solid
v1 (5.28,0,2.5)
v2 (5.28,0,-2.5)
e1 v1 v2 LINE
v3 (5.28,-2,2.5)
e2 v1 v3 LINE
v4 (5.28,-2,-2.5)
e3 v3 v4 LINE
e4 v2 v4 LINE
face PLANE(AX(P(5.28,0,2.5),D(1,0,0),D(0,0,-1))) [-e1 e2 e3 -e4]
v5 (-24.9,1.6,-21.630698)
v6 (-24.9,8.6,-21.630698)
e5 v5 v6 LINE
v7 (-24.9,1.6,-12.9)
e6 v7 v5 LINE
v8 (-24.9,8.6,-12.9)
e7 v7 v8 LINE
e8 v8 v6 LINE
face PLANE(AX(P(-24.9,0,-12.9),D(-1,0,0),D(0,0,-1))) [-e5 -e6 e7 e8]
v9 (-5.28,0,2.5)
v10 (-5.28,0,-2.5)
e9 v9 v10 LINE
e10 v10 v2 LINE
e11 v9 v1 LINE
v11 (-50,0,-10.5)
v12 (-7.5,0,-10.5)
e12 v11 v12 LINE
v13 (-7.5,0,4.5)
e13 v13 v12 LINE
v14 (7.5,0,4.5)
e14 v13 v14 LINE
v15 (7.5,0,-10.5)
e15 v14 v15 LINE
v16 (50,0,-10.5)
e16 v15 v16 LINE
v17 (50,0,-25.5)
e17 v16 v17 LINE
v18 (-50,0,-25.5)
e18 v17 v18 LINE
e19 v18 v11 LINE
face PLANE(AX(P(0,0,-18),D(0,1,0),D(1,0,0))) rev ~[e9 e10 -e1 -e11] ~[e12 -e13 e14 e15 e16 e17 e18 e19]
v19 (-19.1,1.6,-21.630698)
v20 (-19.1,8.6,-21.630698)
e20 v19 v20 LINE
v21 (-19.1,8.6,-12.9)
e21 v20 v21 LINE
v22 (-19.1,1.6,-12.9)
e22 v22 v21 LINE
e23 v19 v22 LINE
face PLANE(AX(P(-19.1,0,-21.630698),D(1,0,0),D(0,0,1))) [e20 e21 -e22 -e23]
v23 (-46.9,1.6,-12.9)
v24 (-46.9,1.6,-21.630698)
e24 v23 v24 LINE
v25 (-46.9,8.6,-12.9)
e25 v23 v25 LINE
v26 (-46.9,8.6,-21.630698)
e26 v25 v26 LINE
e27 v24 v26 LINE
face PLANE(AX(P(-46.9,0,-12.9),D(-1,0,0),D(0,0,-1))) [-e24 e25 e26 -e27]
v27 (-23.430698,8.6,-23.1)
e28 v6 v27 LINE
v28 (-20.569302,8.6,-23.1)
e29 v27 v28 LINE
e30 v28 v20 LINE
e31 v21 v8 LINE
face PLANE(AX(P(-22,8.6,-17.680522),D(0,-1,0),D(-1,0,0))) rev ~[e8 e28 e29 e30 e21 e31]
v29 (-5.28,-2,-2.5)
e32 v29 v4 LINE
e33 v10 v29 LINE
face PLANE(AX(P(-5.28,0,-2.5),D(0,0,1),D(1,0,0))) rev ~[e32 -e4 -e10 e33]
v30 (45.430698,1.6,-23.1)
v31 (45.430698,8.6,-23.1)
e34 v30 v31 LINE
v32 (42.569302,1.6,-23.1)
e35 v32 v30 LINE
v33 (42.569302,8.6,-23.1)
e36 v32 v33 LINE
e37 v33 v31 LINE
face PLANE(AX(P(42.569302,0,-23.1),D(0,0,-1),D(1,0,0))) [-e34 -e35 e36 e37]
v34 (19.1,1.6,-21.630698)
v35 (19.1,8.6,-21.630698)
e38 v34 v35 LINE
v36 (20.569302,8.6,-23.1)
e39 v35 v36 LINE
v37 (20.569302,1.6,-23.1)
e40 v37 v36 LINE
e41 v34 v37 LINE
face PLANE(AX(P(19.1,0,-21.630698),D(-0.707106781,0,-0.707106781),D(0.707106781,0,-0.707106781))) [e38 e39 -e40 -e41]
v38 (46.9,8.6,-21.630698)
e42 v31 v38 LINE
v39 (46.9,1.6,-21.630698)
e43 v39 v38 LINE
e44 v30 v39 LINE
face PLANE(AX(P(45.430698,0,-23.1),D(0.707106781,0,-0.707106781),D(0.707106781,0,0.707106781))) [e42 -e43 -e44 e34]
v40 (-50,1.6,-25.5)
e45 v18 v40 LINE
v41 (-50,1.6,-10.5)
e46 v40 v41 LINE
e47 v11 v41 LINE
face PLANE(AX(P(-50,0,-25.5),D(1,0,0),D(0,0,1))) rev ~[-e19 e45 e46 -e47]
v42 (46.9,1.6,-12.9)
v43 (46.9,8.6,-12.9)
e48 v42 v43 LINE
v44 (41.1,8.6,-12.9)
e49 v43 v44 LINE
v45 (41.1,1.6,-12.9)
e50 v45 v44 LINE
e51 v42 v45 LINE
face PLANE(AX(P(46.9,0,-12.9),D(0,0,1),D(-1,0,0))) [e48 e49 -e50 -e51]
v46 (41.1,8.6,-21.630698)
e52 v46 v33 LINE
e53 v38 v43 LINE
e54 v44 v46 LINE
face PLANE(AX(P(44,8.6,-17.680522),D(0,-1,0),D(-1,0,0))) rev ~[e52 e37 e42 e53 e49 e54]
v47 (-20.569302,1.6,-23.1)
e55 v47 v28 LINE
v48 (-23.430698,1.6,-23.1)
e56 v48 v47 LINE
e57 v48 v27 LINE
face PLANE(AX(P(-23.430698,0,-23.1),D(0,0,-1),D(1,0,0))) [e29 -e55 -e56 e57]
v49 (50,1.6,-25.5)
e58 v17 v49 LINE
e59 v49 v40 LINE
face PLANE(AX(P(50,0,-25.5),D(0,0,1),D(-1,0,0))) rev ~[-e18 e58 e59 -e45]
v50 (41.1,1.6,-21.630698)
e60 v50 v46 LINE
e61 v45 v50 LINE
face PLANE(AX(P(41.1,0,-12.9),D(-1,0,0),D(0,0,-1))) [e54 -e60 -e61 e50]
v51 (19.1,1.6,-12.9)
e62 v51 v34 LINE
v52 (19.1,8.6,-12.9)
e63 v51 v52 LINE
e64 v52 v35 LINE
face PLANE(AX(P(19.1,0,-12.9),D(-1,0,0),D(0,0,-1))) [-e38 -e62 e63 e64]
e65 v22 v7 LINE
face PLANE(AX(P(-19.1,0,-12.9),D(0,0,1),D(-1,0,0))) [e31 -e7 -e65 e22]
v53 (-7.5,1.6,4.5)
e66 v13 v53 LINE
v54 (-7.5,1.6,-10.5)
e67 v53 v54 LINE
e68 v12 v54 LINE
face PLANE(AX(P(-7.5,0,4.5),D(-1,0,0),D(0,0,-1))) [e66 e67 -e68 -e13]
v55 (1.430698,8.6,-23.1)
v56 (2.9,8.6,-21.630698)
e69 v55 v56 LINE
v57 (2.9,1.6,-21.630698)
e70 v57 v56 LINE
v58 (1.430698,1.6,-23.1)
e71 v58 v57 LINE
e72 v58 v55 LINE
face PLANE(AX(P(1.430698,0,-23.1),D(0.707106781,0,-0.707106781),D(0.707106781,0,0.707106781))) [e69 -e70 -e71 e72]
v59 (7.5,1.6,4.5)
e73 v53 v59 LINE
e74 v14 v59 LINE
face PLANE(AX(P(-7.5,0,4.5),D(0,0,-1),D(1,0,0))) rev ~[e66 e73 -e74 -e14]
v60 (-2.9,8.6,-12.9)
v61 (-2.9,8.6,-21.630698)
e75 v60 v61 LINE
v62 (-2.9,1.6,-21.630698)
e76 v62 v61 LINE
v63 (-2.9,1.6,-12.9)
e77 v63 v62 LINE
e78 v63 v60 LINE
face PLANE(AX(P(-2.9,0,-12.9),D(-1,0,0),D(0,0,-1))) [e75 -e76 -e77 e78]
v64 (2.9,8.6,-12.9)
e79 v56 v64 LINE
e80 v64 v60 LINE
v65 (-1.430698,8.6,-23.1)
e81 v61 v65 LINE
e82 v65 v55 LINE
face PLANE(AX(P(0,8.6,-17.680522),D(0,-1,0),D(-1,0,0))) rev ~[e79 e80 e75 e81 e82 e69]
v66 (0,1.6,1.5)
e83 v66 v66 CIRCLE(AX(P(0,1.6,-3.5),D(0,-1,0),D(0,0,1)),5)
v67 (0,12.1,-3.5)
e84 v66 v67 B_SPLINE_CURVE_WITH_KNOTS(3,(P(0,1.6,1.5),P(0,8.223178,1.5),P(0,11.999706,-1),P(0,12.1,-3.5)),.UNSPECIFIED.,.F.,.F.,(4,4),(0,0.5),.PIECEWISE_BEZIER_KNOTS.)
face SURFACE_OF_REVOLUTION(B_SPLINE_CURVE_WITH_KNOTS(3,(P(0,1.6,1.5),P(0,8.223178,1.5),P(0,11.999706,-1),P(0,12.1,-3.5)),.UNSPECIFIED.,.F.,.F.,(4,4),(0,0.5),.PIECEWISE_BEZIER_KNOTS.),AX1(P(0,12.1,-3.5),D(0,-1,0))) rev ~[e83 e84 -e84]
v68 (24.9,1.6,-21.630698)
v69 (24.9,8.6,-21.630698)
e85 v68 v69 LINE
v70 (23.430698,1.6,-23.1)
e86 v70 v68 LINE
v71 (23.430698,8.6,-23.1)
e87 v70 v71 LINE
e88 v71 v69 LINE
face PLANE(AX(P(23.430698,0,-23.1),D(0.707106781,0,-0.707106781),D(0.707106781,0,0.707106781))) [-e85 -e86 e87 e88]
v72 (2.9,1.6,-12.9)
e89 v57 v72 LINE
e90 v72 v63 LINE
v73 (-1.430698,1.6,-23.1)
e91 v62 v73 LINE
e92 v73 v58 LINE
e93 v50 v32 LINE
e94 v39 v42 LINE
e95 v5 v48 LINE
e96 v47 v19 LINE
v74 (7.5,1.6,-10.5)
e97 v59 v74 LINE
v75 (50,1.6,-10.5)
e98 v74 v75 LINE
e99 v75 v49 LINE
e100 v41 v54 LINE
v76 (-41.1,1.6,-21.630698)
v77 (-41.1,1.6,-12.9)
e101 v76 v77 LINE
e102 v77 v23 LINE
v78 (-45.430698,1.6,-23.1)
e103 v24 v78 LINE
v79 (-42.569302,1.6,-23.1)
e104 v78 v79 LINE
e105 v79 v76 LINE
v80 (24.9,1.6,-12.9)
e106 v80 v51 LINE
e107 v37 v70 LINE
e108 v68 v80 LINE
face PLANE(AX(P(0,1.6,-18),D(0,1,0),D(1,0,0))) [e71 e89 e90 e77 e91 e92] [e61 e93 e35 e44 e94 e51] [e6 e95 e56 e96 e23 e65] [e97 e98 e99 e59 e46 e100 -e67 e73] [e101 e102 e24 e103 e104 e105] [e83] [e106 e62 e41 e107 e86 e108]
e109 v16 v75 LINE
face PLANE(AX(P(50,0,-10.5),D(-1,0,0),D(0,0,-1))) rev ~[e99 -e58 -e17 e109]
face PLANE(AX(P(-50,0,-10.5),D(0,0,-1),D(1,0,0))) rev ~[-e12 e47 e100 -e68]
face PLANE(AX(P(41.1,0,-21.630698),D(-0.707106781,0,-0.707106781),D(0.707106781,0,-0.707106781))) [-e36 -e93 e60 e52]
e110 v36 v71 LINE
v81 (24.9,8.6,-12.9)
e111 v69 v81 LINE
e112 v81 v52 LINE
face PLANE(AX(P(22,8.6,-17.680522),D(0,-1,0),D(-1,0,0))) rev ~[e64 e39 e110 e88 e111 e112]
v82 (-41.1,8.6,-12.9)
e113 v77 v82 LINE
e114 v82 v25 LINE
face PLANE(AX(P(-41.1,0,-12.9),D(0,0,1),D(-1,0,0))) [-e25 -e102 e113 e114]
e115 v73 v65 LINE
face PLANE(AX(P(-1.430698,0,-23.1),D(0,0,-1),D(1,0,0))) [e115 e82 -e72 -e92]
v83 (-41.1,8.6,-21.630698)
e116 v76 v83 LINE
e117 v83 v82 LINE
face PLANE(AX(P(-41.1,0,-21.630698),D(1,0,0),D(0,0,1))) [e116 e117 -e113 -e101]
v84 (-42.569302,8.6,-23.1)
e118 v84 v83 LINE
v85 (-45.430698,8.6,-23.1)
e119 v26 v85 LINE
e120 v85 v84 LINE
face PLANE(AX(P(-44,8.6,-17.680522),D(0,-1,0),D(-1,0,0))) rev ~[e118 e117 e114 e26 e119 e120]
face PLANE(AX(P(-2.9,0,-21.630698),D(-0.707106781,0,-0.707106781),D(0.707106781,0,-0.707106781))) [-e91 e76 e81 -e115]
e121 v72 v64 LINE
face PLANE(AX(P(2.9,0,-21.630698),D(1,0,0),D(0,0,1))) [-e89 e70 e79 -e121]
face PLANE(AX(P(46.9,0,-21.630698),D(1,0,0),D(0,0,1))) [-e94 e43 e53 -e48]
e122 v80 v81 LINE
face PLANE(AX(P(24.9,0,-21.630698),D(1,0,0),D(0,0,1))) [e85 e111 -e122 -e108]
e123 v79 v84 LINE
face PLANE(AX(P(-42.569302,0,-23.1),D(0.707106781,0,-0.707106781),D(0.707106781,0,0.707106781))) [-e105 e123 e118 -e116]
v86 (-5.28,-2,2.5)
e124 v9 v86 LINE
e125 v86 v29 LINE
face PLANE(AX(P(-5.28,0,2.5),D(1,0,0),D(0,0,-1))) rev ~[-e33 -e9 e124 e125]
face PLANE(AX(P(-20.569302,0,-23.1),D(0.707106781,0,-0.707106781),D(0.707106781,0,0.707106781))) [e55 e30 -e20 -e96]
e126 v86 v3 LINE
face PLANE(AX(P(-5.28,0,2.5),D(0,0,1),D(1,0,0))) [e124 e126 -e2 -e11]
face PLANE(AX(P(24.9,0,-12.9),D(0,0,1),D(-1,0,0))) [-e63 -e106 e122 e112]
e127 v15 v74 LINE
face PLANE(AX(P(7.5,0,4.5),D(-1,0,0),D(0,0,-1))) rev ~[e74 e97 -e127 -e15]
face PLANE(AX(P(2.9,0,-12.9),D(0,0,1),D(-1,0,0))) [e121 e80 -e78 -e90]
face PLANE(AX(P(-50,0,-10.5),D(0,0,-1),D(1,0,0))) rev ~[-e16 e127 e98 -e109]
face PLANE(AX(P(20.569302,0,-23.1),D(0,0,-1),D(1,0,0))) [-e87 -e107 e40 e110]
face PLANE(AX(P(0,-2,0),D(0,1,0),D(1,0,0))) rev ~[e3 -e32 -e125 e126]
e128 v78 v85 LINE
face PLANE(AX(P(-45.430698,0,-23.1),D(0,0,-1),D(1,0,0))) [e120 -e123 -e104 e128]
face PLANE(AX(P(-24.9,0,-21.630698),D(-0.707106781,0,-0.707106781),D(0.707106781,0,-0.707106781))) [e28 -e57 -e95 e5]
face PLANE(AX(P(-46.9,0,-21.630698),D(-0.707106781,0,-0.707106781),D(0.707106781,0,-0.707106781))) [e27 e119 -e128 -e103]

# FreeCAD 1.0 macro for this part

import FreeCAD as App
import Part
import Sketcher

V = App.Vector
Q = App.Units.Quantity


def add_polygon(sketch, points):
    """Adds a closed chain of lines whose ends are joined by coincident constraints."""
    first, n = sketch.GeometryCount, len(points)
    for a, b in zip(points, points[1:] + points[:1]):
        sketch.addGeometry(Part.LineSegment(App.Vector(*a, 0), App.Vector(*b, 0)), False)
    for i in range(n):
        sketch.addConstraint(Sketcher.Constraint("Coincident", first + i, 2, first + (i + 1) % n, 1))

doc = App.newDocument("Part")
body = doc.addObject("PartDesign::Body", "Body")

# Sketch on XZ plane
sketch1 = body.newObject("Sketcher::SketchObject", "Sketch")
sketch1.AttachmentSupport = (doc.getObject("XZ_Plane"), [""])
sketch1.MapMode = "FlatFace"
add_polygon(sketch1, [(-7.5, -10.5), (-7.5, 4.5), (7.5, 4.5), (7.5, -10.5), (50, -10.5), (50, -25.5), (-50, -25.5), (-50, -10.5)])  # lines 0-7
add_polygon(sketch1, [(45.430698, -23.1), (46.9, -21.630698), (46.9, -12.9), (41.1, -12.9), (41.1, -21.630698), (42.569302, -23.1)])  # lines 8-13
add_polygon(sketch1, [(-45.430698, -23.1), (-42.569302, -23.1), (-41.1, -21.630698), (-41.1, -12.9), (-46.9, -12.9), (-46.9, -21.630698)])  # lines 14-19
add_polygon(sketch1, [(-23.430698, -23.1), (-20.569302, -23.1), (-19.1, -21.630698), (-19.1, -12.9), (-24.9, -12.9), (-24.9, -21.630698)])  # lines 20-25
add_polygon(sketch1, [(2.9, -21.630698), (2.9, -12.9), (-2.9, -12.9), (-2.9, -21.630698), (-1.430698, -23.1), (1.430698, -23.1)])  # lines 26-31
add_polygon(sketch1, [(20.569302, -23.1), (23.430698, -23.1), (24.9, -21.630698), (24.9, -12.9), (19.1, -12.9), (19.1, -21.630698)])  # lines 32-37
sketch1.addConstraint(Sketcher.Constraint("Vertical", 0))
sketch1.addConstraint(Sketcher.Constraint("Horizontal", 1))
sketch1.addConstraint(Sketcher.Constraint("Vertical", 2))
sketch1.addConstraint(Sketcher.Constraint("Horizontal", 3))
sketch1.addConstraint(Sketcher.Constraint("Vertical", 4))
sketch1.addConstraint(Sketcher.Constraint("Horizontal", 5))
sketch1.addConstraint(Sketcher.Constraint("Vertical", 6))
sketch1.addConstraint(Sketcher.Constraint("Horizontal", 7))
sketch1.addConstraint(Sketcher.Constraint("Vertical", 9))
sketch1.addConstraint(Sketcher.Constraint("Horizontal", 10))
sketch1.addConstraint(Sketcher.Constraint("Vertical", 11))
sketch1.addConstraint(Sketcher.Constraint("Horizontal", 13))
sketch1.addConstraint(Sketcher.Constraint("Horizontal", 14))
sketch1.addConstraint(Sketcher.Constraint("Vertical", 16))
sketch1.addConstraint(Sketcher.Constraint("Horizontal", 17))
sketch1.addConstraint(Sketcher.Constraint("Vertical", 18))
sketch1.addConstraint(Sketcher.Constraint("Horizontal", 20))
sketch1.addConstraint(Sketcher.Constraint("Vertical", 22))
sketch1.addConstraint(Sketcher.Constraint("Horizontal", 23))
sketch1.addConstraint(Sketcher.Constraint("Vertical", 24))
sketch1.addConstraint(Sketcher.Constraint("Vertical", 26))
sketch1.addConstraint(Sketcher.Constraint("Horizontal", 27))
sketch1.addConstraint(Sketcher.Constraint("Vertical", 28))
sketch1.addConstraint(Sketcher.Constraint("Horizontal", 30))
sketch1.addConstraint(Sketcher.Constraint("Horizontal", 32))
sketch1.addConstraint(Sketcher.Constraint("Vertical", 34))
sketch1.addConstraint(Sketcher.Constraint("Horizontal", 35))
sketch1.addConstraint(Sketcher.Constraint("Vertical", 36))
sketch1.addConstraint(Sketcher.Constraint("Symmetric", 3, 2, 6, 2, -2))
sketch1.addConstraint(Sketcher.Constraint("Symmetric", 12, 2, 14, 2, -2))
sketch1.addConstraint(Sketcher.Constraint("Symmetric", 11, 2, 15, 2, -2))
sketch1.addConstraint(Sketcher.Constraint("Symmetric", 9, 2, 17, 2, -2))
sketch1.addConstraint(Sketcher.Constraint("Symmetric", 28, 2, 31, 2, -2))
sketch1.addConstraint(Sketcher.Constraint("Symmetric", 25, 2, 32, 2, -2))
sketch1.addConstraint(Sketcher.Constraint("Symmetric", 24, 2, 33, 2, -2))
sketch1.addConstraint(Sketcher.Constraint("Symmetric", 22, 2, 35, 2, -2))
sketch1.addConstraint(Sketcher.Constraint("Perpendicular", 8, 12))
sketch1.addConstraint(Sketcher.Constraint("Perpendicular", 12, 15))
sketch1.addConstraint(Sketcher.Constraint("Perpendicular", 15, 19))
sketch1.addConstraint(Sketcher.Constraint("Perpendicular", 19, 21))
sketch1.addConstraint(Sketcher.Constraint("Perpendicular", 21, 25))
sketch1.addConstraint(Sketcher.Constraint("Parallel", 25, 29))
sketch1.addConstraint(Sketcher.Constraint("Perpendicular", 29, 31))
sketch1.addConstraint(Sketcher.Constraint("Perpendicular", 33, 37))
sketch1.addConstraint(Sketcher.Constraint("Horizontal", 8, 2, 11, 2))
sketch1.addConstraint(Sketcher.Constraint("Horizontal", 15, 2, 18, 2))
sketch1.addConstraint(Sketcher.Constraint("Horizontal", 19, 2, 20, 2))
sketch1.addConstraint(Sketcher.Constraint("Horizontal", 18, 2, 21, 2))
sketch1.addConstraint(Sketcher.Constraint("Horizontal", 17, 2, 22, 2))
sketch1.addConstraint(Sketcher.Constraint("Horizontal", 21, 2, 24, 2))
sketch1.addConstraint(Sketcher.Constraint("Horizontal", 23, 2, 26, 2))
sketch1.addConstraint(Sketcher.Constraint("Horizontal", 24, 2, 28, 2))
sketch1.addConstraint(Sketcher.Constraint("Horizontal", 25, 2, 29, 2))
sketch1.addConstraint(Sketcher.Constraint("Horizontal", 33, 2, 36, 2))
sketch1.addConstraint(Sketcher.Constraint("Equal", 3, 7))
sketch1.addConstraint(Sketcher.Constraint("Equal", 14, 20))
sketch1.addConstraint(Sketcher.Constraint("Equal", 23, 27))
sketch1.addConstraint(Sketcher.Constraint("Equal", 1, 0))
sketch1.addConstraint(Sketcher.Constraint("Equal", 2, 4))
sketch1.addConstraint(Sketcher.Constraint("DistanceX", 1, 1, 1, 2, Q("15 mm")))
sketch1.addConstraint(Sketcher.Constraint("DistanceX", 5, 2, 5, 1, Q("100 mm")))
sketch1.addConstraint(Sketcher.Constraint("DistanceX", 10, 2, 10, 1, Q("5.8 mm")))
sketch1.addConstraint(Sketcher.Constraint("DistanceX", 14, 2, 20, 2, Q("22 mm")))
sketch1.addConstraint(Sketcher.Constraint("DistanceX", 22, 2, 26, 2, Q("22 mm")))
sketch1.addConstraint(Sketcher.Constraint("DistanceY", -1, 1, 0, 2, Q("4.5 mm")))
sketch1.addConstraint(Sketcher.Constraint("DistanceY", 9, 2, -1, 1, Q("12.9 mm")))
sketch1.addConstraint(Sketcher.Constraint("DistanceY", 12, 2, -1, 1, Q("23.1 mm")))
sketch1.addConstraint(Sketcher.Constraint("DistanceX", 13, 1, 13, 2, Q("2.861396 mm")))
pad1 = body.newObject("PartDesign::Pad", "Pad")
pad1.Profile = sketch1
pad1.Length = 1.6
pad1.Reversed = True

# Sketch on XZ plane
sketch2 = body.newObject("Sketcher::SketchObject", "Sketch001")
sketch2.AttachmentSupport = (doc.getObject("XZ_Plane"), [""])
sketch2.MapMode = "FlatFace"
add_polygon(sketch2, [(-5.28, -2.5), (-5.28, 2.5), (5.28, 2.5), (5.28, -2.5)])  # lines 0-3
sketch2.addConstraint(Sketcher.Constraint("Vertical", 0))
sketch2.addConstraint(Sketcher.Constraint("Horizontal", 1))
sketch2.addConstraint(Sketcher.Constraint("Vertical", 2))
sketch2.addConstraint(Sketcher.Constraint("Horizontal", 3))
sketch2.addConstraint(Sketcher.Constraint("Symmetric", 0, 2, 2, 2, -1, 1))
sketch2.addConstraint(Sketcher.Constraint("DistanceY", 0, 1, 0, 2, Q("5 mm")))
sketch2.addConstraint(Sketcher.Constraint("DistanceX", 1, 1, 1, 2, Q("10.56 mm")))
pad2 = body.newObject("PartDesign::Pad", "Pad001")
pad2.Profile = sketch2
pad2.Length = 2

# Sketch on XZ plane
sketch3 = body.newObject("Sketcher::SketchObject", "Sketch002")
sketch3.AttachmentSupport = (doc.getObject("XZ_Plane"), [""])
sketch3.MapMode = "FlatFace"
add_polygon(sketch3, [(24.9, -21.630698), (23.430698, -23.1), (20.569302, -23.1), (19.1, -21.630698), (19.1, -12.9), (24.9, -12.9)])  # lines 0-5
add_polygon(sketch3, [(46.9, -21.630698), (45.430698, -23.1), (42.569302, -23.1), (41.1, -21.630698), (41.1, -12.9), (46.9, -12.9)])  # lines 6-11
add_polygon(sketch3, [(2.9, -12.9), (2.9, -21.630698), (1.430698, -23.1), (-1.430698, -23.1), (-2.9, -21.630698), (-2.9, -12.9)])  # lines 12-17
add_polygon(sketch3, [(-19.1, -21.630698), (-20.569302, -23.1), (-23.430698, -23.1), (-24.9, -21.630698), (-24.9, -12.9), (-19.1, -12.9)])  # lines 18-23
add_polygon(sketch3, [(-41.1, -21.630698), (-42.569302, -23.1), (-45.430698, -23.1), (-46.9, -21.630698), (-46.9, -12.9), (-41.1, -12.9)])  # lines 24-29
sketch3.addConstraint(Sketcher.Constraint("Horizontal", 1))
sketch3.addConstraint(Sketcher.Constraint("Vertical", 3))
sketch3.addConstraint(Sketcher.Constraint("Horizontal", 4))
sketch3.addConstraint(Sketcher.Constraint("Vertical", 5))
sketch3.addConstraint(Sketcher.Constraint("Horizontal", 7))
sketch3.addConstraint(Sketcher.Constraint("Vertical", 9))
sketch3.addConstraint(Sketcher.Constraint("Horizontal", 10))
sketch3.addConstraint(Sketcher.Constraint("Vertical", 11))
sketch3.addConstraint(Sketcher.Constraint("Vertical", 12))
sketch3.addConstraint(Sketcher.Constraint("Horizontal", 14))
sketch3.addConstraint(Sketcher.Constraint("Vertical", 16))
sketch3.addConstraint(Sketcher.Constraint("Horizontal", 17))
sketch3.addConstraint(Sketcher.Constraint("Horizontal", 19))
sketch3.addConstraint(Sketcher.Constraint("Vertical", 21))
sketch3.addConstraint(Sketcher.Constraint("Horizontal", 22))
sketch3.addConstraint(Sketcher.Constraint("Vertical", 23))
sketch3.addConstraint(Sketcher.Constraint("Horizontal", 25))
sketch3.addConstraint(Sketcher.Constraint("Vertical", 27))
sketch3.addConstraint(Sketcher.Constraint("Horizontal", 28))
sketch3.addConstraint(Sketcher.Constraint("Vertical", 29))
sketch3.addConstraint(Sketcher.Constraint("Symmetric", 12, 2, 15, 2, -2))
sketch3.addConstraint(Sketcher.Constraint("Symmetric", 1, 2, 18, 2, -2))
sketch3.addConstraint(Sketcher.Constraint("Symmetric", 5, 2, 20, 2, -2))
sketch3.addConstraint(Sketcher.Constraint("Symmetric", 3, 2, 22, 2, -2))
sketch3.addConstraint(Sketcher.Constraint("Symmetric", 7, 2, 24, 2, -2))
sketch3.addConstraint(Sketcher.Constraint("Symmetric", 11, 2, 26, 2, -2))
sketch3.addConstraint(Sketcher.Constraint("Symmetric", 9, 2, 28, 2, -2))
sketch3.addConstraint(Sketcher.Constraint("Perpendicular", 0, 2))
sketch3.addConstraint(Sketcher.Constraint("Perpendicular", 2, 6))
sketch3.addConstraint(Sketcher.Constraint("Perpendicular", 6, 8))
sketch3.addConstraint(Sketcher.Constraint("Perpendicular", 8, 13))
sketch3.addConstraint(Sketcher.Constraint("Perpendicular", 13, 15))
sketch3.addConstraint(Sketcher.Constraint("Perpendicular", 15, 18))
sketch3.addConstraint(Sketcher.Constraint("Perpendicular", 18, 20))
sketch3.addConstraint(Sketcher.Constraint("Perpendicular", 20, 24))
sketch3.addConstraint(Sketcher.Constraint("Perpendicular", 24, 26))
sketch3.addConstraint(Sketcher.Constraint("Horizontal", 2, 2, 5, 2))
sketch3.addConstraint(Sketcher.Constraint("Horizontal", 1, 2, 6, 2))
sketch3.addConstraint(Sketcher.Constraint("Horizontal", 5, 2, 8, 2))
sketch3.addConstraint(Sketcher.Constraint("Horizontal", 4, 2, 9, 2))
sketch3.addConstraint(Sketcher.Constraint("Horizontal", 8, 2, 11, 2))
sketch3.addConstraint(Sketcher.Constraint("Horizontal", 11, 2, 12, 2))
sketch3.addConstraint(Sketcher.Constraint("Horizontal", 7, 2, 13, 2))
sketch3.addConstraint(Sketcher.Constraint("Horizontal", 10, 2, 16, 2))
sketch3.addConstraint(Sketcher.Constraint("Horizontal", 20, 2, 23, 2))
sketch3.addConstraint(Sketcher.Constraint("Equal", 1, 7))
sketch3.addConstraint(Sketcher.Constraint("Equal", 7, 14))
sketch3.addConstraint(Sketcher.Constraint("DistanceX", 4, 1, 4, 2, Q("5.8 mm")))
sketch3.addConstraint(Sketcher.Constraint("DistanceX", 0, 2, 6, 2, Q("22 mm")))
sketch3.addConstraint(Sketcher.Constraint("DistanceX", 12, 2, 5, 2, Q("22 mm")))
sketch3.addConstraint(Sketcher.Constraint("DistanceY", 0, 2, -1, 1, Q("23.1 mm")))
sketch3.addConstraint(Sketcher.Constraint("DistanceY", 3, 2, -1, 1, Q("12.9 mm")))
sketch3.addConstraint(Sketcher.Constraint("DistanceX", 1, 2, 1, 1, Q("2.861396 mm")))
pad3 = body.newObject("PartDesign::Pad", "Pad002")
pad3.Profile = sketch3
pad3.Length = 8.6
pad3.Reversed = True

# Sketch on YZ plane
sketch4 = body.newObject("Sketcher::SketchObject", "Sketch003")
sketch4.AttachmentSupport = (doc.getObject("YZ_Plane"), [""])
sketch4.MapMode = "FlatFace"
sketch4.addGeometry(Part.BSplineCurve([V(1.6, 1.5, 0), V(8.223178, 1.5, 0), V(11.999706, -1, 0), V(12.1, -3.5, 0)], [4, 4], [0, 0.5], False, 3, [1, 1, 1, 1], False), False)
sketch4.addGeometry(Part.LineSegment(V(1.6, 1.5, 0), V(1.6, -3.5, 0)), False)
sketch4.addGeometry(Part.LineSegment(V(1.6, -3.5, 0), V(12.1, -3.5, 0)), False)
sketch4.addGeometry(Part.LineSegment(V(12.1, -3.5, 0), V(1.6, -3.5, 0)), True)  # axis
sketch4.addConstraint(Sketcher.Constraint("Block", 0))
sketch4.addConstraint(Sketcher.Constraint("Coincident", 0, 1, 1, 1))
sketch4.addConstraint(Sketcher.Constraint("Coincident", 1, 2, 2, 1))
sketch4.addConstraint(Sketcher.Constraint("Coincident", 2, 2, 0, 2))
sketch4.addConstraint(Sketcher.Constraint("Vertical", 1))
sketch4.addConstraint(Sketcher.Constraint("Horizontal", 2))
sketch4.addConstraint(Sketcher.Constraint("Horizontal", 3))
sketch4.addConstraint(Sketcher.Constraint("Coincident", 3, 1, 2, 2))
sketch4.addConstraint(Sketcher.Constraint("Equal", 2, 3))
revolution = body.newObject("PartDesign::Revolution", "Revolution")
revolution.Profile = sketch4
revolution.ReferenceAxis = (sketch4, ["Axis0"])
revolution.Angle = 360

doc.recompute()
